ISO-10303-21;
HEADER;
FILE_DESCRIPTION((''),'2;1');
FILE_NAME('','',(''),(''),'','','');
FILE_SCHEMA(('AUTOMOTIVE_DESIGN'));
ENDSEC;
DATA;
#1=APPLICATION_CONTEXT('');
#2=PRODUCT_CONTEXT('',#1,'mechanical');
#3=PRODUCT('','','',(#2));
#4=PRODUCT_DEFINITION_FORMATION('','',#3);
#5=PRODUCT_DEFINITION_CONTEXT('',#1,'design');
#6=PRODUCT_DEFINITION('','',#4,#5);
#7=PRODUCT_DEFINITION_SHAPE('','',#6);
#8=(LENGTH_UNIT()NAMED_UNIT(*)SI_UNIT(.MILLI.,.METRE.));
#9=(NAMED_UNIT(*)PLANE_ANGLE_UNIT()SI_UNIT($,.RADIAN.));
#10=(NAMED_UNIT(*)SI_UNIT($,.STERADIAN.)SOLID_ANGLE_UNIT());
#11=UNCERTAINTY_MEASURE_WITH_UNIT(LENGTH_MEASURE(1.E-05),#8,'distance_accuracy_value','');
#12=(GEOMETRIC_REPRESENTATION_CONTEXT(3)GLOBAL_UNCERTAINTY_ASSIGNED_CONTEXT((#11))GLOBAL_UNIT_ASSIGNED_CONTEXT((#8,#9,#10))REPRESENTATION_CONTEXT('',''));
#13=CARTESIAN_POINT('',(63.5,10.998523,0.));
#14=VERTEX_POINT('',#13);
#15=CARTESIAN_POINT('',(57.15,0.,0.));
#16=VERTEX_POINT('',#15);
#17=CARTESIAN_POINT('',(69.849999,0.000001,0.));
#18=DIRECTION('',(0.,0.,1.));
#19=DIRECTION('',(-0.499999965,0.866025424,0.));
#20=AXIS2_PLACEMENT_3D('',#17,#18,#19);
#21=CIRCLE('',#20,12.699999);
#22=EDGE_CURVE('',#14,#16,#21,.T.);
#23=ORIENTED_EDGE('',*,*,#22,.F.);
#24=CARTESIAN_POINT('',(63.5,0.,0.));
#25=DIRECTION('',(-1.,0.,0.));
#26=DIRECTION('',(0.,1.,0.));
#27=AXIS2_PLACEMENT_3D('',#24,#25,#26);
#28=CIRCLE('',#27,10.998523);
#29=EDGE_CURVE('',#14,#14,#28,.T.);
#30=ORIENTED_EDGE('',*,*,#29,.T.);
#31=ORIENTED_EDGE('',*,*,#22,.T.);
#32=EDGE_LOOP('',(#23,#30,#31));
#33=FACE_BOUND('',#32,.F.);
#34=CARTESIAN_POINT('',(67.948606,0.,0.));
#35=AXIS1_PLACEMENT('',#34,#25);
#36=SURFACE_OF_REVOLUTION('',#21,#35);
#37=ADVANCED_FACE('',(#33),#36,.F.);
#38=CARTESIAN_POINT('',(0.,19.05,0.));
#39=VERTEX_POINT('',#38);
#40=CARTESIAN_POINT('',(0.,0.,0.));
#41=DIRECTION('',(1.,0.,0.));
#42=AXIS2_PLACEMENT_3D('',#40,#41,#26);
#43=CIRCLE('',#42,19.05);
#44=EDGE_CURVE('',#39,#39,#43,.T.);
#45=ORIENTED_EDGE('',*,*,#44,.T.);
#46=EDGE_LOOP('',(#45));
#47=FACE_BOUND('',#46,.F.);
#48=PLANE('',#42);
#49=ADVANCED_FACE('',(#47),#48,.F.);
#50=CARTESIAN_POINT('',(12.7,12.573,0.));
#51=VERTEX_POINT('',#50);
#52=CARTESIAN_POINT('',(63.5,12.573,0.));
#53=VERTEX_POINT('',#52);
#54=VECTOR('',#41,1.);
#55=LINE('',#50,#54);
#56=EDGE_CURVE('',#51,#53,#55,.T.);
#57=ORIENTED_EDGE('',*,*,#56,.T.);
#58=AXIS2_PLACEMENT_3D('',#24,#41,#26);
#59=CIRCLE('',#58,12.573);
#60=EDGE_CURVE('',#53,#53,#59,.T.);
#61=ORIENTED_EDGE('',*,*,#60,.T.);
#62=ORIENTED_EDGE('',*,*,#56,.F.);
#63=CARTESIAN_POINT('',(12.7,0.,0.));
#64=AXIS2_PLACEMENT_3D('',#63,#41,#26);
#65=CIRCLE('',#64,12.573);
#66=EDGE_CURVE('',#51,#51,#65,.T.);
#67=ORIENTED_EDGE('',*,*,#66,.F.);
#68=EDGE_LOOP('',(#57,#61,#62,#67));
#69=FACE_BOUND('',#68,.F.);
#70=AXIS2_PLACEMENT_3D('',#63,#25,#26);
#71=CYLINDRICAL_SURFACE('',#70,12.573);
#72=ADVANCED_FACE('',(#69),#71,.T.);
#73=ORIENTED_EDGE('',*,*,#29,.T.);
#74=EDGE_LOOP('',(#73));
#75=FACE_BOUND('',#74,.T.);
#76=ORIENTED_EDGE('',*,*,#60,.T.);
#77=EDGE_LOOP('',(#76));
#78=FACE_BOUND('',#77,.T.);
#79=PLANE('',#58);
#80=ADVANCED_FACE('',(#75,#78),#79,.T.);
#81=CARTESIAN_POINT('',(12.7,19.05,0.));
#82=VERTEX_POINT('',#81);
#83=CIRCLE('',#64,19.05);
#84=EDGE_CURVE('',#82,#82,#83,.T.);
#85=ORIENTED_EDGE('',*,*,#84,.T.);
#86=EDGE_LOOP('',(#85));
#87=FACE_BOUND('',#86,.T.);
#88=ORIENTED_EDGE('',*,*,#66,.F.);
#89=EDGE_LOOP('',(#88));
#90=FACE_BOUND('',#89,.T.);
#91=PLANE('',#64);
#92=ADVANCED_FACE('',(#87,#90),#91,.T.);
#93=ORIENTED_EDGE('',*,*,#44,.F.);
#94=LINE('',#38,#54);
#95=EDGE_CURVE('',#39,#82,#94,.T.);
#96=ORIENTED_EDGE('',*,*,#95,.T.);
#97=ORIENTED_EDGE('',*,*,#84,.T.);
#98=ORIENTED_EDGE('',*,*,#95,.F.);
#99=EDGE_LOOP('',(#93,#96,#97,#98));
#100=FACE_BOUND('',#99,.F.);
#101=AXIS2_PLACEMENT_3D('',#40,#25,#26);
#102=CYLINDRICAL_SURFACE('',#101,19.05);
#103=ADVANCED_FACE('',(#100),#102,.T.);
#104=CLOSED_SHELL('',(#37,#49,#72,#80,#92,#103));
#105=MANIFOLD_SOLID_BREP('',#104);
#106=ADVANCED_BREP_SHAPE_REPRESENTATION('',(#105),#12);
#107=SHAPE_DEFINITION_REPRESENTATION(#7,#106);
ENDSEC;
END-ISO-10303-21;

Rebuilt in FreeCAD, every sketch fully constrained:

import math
import FreeCAD as App
import Part
import Sketcher
Q = App.Units.Quantity

doc = App.newDocument("Part")
body = doc.addObject("PartDesign::Body", "Body")

# Sketch on YZ plane
sketch1 = body.newObject("Sketcher::SketchObject", "Sketch")
sketch1.AttachmentSupport = (doc.getObject("YZ_Plane"), [""])
sketch1.MapMode = "FlatFace"
sketch1.addGeometry(Part.Circle(App.Vector(0, 0, 0), App.Vector(0, 0, 1), 19), False)
sketch1.addConstraint([
    Sketcher.Constraint("Coincident", 0, 3, -1, 1),
    Sketcher.Constraint("Diameter", 0, Q("1.5 in")),
])
pad1 = body.newObject("PartDesign::Pad", "Pad")
pad1.Profile = sketch1
pad1.Length = Q("0.5 in")

# Sketch on YZ plane
sketch2 = body.newObject("Sketcher::SketchObject", "Sketch001")
sketch2.AttachmentSupport = (doc.getObject("YZ_Plane"), [""])
sketch2.MapMode = "FlatFace"
sketch2.AttachmentOffset = App.Placement(App.Vector(0, 0, 0.5 * 25.4), App.Rotation())
sketch2.addGeometry(Part.Circle(App.Vector(0, 0, 0), App.Vector(0, 0, 1), 13), False)
sketch2.addConstraint([
    Sketcher.Constraint("Coincident", 0, 3, -1, 1),
    Sketcher.Constraint("Diameter", 0, Q("0.99 in")),
])
pad2 = body.newObject("PartDesign::Pad", "Pad001")
pad2.Profile = sketch2
pad2.Length = Q("2 in")

# Sketch on XY plane
sketch3 = body.newObject("Sketcher::SketchObject", "Sketch002")
sketch3.AttachmentSupport = (doc.getObject("XY_Plane"), [""])
sketch3.MapMode = "FlatFace"
sketch3.addGeometry([
    Part.LineSegment(App.Vector(64, 0, 0), App.Vector(64, 11, 0)),
    Part.ArcOfCircle(Part.Circle(App.Vector(70, 0, 0), App.Vector(0, 0, 1), 13), math.radians(120), math.radians(180)),
    Part.LineSegment(App.Vector(57, 0, 0), App.Vector(64, 0, 0)),
], False)
sketch3.addConstraint([
    Sketcher.Constraint("Coincident", 0, 2, 1, 1),
    Sketcher.Constraint("Coincident", 1, 2, 2, 1),
    Sketcher.Constraint("Coincident", 2, 2, 0, 1),
    Sketcher.Constraint("Vertical", 0),
    Sketcher.Constraint("Horizontal", 2),
    Sketcher.Constraint("PointOnObject", 1, 3, -1),
    Sketcher.Constraint("PointOnObject", 1, 2, -1),
    Sketcher.Constraint("Radius", 1, Q("0.5 in")),
    Sketcher.Constraint("DistanceX", 2, 1, 2, 2, Q("0.25 in")),
    Sketcher.Constraint("DistanceX", -1, 1, 0, 2, Q("2.5 in")),
])
groove = body.newObject("PartDesign::Groove", "Groove")
groove.Profile = sketch3
groove.ReferenceAxis = (sketch3, ["H_Axis"])
groove.Angle = 360

doc.recompute()
